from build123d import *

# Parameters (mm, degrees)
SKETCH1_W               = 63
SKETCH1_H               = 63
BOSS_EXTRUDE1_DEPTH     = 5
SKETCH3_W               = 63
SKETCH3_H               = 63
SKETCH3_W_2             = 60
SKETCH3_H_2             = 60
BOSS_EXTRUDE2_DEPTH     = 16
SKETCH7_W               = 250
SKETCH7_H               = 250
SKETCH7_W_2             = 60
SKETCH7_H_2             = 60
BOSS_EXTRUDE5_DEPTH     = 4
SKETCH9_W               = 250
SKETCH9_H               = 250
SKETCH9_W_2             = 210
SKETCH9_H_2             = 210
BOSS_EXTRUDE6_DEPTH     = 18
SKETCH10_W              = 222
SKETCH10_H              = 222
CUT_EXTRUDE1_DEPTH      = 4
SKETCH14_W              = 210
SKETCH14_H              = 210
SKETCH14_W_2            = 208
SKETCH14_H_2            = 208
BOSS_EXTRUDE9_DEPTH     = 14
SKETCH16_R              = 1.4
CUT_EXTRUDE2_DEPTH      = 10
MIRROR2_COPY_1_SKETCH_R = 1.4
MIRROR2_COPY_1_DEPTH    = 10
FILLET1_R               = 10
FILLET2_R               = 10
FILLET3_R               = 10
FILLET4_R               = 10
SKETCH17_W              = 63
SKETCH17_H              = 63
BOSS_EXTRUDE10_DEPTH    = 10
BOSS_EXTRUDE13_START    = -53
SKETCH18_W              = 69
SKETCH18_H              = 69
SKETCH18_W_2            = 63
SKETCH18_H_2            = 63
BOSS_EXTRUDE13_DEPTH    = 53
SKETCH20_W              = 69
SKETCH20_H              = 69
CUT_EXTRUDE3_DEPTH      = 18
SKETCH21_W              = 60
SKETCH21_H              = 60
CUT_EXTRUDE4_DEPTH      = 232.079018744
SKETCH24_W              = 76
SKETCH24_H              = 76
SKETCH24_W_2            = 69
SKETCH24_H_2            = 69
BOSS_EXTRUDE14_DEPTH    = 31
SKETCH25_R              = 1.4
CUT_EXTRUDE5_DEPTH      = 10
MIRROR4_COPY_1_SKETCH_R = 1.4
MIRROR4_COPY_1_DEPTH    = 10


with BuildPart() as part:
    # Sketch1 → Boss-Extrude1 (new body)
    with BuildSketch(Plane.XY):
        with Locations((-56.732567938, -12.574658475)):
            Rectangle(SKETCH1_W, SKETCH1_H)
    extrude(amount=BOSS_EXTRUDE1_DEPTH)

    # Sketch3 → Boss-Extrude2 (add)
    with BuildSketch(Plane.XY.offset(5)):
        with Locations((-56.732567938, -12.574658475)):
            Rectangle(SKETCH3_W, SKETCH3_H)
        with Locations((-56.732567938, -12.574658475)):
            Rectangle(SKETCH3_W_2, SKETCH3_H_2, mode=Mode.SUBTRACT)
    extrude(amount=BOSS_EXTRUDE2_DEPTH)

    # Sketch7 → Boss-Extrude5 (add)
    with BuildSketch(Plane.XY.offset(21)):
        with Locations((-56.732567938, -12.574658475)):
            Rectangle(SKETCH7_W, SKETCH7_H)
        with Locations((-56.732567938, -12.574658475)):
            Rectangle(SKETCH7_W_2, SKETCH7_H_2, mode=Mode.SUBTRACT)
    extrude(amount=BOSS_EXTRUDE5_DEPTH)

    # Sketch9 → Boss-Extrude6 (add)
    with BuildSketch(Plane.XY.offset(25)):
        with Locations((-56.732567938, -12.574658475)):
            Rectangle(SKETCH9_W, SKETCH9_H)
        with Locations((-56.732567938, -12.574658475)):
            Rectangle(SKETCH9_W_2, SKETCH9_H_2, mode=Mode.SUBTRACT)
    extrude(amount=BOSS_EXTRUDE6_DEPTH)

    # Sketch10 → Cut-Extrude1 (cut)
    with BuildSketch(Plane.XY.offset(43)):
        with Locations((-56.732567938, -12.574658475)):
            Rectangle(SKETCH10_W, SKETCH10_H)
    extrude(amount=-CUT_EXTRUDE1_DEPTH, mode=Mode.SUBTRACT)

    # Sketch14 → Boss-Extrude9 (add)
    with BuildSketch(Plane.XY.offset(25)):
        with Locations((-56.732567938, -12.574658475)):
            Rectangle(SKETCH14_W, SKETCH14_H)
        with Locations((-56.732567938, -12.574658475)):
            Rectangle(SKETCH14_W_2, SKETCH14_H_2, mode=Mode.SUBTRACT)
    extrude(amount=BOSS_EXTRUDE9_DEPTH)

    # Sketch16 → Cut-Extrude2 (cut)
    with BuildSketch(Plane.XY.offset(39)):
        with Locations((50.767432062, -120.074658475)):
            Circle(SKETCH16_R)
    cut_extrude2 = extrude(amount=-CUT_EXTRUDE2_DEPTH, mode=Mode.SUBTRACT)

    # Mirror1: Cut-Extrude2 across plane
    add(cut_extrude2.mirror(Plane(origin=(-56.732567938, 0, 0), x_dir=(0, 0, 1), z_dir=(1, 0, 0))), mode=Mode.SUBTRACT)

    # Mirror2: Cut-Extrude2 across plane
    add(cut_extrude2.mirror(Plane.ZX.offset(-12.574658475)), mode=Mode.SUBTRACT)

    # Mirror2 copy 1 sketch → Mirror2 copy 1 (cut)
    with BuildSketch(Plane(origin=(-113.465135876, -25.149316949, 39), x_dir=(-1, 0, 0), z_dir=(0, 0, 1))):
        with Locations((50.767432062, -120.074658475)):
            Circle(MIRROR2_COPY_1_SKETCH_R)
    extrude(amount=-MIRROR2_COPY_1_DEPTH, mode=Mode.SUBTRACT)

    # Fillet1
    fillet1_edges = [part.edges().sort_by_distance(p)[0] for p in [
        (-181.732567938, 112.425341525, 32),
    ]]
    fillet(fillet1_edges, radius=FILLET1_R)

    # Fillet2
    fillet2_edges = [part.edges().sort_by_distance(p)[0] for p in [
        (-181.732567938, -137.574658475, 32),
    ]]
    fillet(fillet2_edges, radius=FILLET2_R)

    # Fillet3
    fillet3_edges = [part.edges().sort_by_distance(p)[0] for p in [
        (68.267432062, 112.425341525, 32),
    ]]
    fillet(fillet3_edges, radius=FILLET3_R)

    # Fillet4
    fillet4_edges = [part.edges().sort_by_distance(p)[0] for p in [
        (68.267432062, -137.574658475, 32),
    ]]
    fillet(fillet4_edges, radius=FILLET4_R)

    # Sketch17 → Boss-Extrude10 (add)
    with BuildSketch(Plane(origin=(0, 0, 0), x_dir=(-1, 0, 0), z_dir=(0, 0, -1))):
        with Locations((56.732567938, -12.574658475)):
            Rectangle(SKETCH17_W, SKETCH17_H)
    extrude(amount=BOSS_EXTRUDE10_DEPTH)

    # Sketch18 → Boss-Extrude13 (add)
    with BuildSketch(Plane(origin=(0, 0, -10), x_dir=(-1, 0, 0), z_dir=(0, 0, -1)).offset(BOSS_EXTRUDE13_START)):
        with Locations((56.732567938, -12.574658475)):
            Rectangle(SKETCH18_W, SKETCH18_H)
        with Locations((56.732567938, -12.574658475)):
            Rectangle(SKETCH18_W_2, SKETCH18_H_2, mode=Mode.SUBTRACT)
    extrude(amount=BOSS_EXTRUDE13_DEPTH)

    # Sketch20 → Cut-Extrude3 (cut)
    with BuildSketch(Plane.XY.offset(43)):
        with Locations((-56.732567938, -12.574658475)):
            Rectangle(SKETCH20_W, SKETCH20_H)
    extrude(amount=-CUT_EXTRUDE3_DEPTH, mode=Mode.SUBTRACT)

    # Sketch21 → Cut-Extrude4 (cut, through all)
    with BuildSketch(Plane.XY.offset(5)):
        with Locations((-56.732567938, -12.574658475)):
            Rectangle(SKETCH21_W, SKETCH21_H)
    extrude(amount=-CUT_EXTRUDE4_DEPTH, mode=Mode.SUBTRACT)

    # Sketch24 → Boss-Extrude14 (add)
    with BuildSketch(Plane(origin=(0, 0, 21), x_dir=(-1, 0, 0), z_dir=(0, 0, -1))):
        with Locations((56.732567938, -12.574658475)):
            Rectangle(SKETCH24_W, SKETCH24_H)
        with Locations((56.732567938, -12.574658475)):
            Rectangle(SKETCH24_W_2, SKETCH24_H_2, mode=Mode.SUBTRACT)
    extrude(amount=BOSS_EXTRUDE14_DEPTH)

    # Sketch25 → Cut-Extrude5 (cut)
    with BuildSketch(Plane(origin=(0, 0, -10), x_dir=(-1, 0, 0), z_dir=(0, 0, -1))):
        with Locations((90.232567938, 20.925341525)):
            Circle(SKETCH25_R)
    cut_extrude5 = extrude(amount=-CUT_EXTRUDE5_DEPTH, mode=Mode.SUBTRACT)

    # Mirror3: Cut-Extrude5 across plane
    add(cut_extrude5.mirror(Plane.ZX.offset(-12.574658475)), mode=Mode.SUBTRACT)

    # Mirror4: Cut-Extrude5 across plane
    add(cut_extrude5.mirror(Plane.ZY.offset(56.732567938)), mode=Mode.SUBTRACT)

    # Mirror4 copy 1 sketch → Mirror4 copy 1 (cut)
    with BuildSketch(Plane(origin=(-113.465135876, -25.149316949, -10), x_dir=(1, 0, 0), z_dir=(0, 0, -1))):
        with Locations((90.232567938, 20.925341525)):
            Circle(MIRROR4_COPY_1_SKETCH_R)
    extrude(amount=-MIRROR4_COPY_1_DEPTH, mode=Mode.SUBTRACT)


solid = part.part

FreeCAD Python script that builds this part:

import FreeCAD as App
import Part
import Sketcher
Q = App.Units.Quantity


def edges_at(feature, points):
    """Names of the edges that pass closest to the given points."""
    edges = feature.Shape.Edges
    near = lambda p: min(range(len(edges)), key=lambda i: edges[i].distToShape(Part.Vertex(*p))[0])
    return sorted({f"Edge{near(p) + 1}" for p in points})


def add_polygon(sketch, points):
    """Adds a closed chain of lines whose ends are joined by coincident constraints."""
    first, n = sketch.GeometryCount, len(points)
    for a, b in zip(points, points[1:] + points[:1]):
        sketch.addGeometry(Part.LineSegment(App.Vector(*a, 0), App.Vector(*b, 0)), False)
    for i in range(n):
        sketch.addConstraint(Sketcher.Constraint("Coincident", first + i, 2, first + (i + 1) % n, 1))

doc = App.newDocument("Part")
body = doc.addObject("PartDesign::Body", "Body")

# Sketch on XY plane
sketch1 = body.newObject("Sketcher::SketchObject", "Sketch")
sketch1.AttachmentSupport = (doc.getObject("XY_Plane"), [""])
sketch1.MapMode = "FlatFace"
add_polygon(sketch1, [(-88, 19), (-88, -44), (-25, -44), (-25, 19)])  # lines 0-3
sketch1.addConstraint([
    Sketcher.Constraint("Vertical", 0),
    Sketcher.Constraint("Horizontal", 1),
    Sketcher.Constraint("Vertical", 2),
    Sketcher.Constraint("Horizontal", 3),
    Sketcher.Constraint("Equal", 3, 0),
    Sketcher.Constraint("DistanceX", 1, 1, 1, 2, Q("63 mm")),
    Sketcher.Constraint("DistanceY", 0, 2, -1, 1, Q("44.074658 mm")),
    Sketcher.Constraint("DistanceX", 0, 2, -1, 1, Q("88.232568 mm")),
])
pad1 = body.newObject("PartDesign::Pad", "Pad")
pad1.Profile = sketch1
pad1.Length = 5

# Sketch on XY plane
sketch2 = body.newObject("Sketcher::SketchObject", "Sketch001")
sketch2.AttachmentSupport = (doc.getObject("XY_Plane"), [""])
sketch2.MapMode = "FlatFace"
sketch2.AttachmentOffset = App.Placement(App.Vector(0, 0, 5), App.Rotation())
add_polygon(sketch2, [(-88, 19), (-88, -44), (-25, -44), (-25, 19)])  # lines 0-3
add_polygon(sketch2, [(-27, -43), (-87, -43), (-87, 17), (-27, 17)])  # lines 4-7
sketch2.addConstraint([
    Sketcher.Constraint("Vertical", 0),
    Sketcher.Constraint("Horizontal", 1),
    Sketcher.Constraint("Vertical", 2),
    Sketcher.Constraint("Horizontal", 3),
    Sketcher.Constraint("Horizontal", 4),
    Sketcher.Constraint("Vertical", 5),
    Sketcher.Constraint("Horizontal", 6),
    Sketcher.Constraint("Vertical", 7),
    Sketcher.Constraint("Equal", 3, 0),
    Sketcher.Constraint("Equal", 6, 5),
    Sketcher.Constraint("DistanceX", 1, 1, 1, 2, Q("63 mm")),
    Sketcher.Constraint("DistanceX", 4, 2, 4, 1, Q("60 mm")),
    Sketcher.Constraint("DistanceX", 0, 2, 4, 2, Q("1.5 mm")),
    Sketcher.Constraint("DistanceY", 0, 2, 4, 2, Q("1.5 mm")),
    Sketcher.Constraint("DistanceY", 0, 2, -1, 1, Q("44.074658 mm")),
    Sketcher.Constraint("DistanceX", 0, 2, -1, 1, Q("88.232568 mm")),
])
pad2 = body.newObject("PartDesign::Pad", "Pad001")
pad2.Profile = sketch2
pad2.Length = 16

# Sketch on XY plane
sketch3 = body.newObject("Sketcher::SketchObject", "Sketch002")
sketch3.AttachmentSupport = (doc.getObject("XY_Plane"), [""])
sketch3.MapMode = "FlatFace"
sketch3.AttachmentOffset = App.Placement(App.Vector(0, 0, 21), App.Rotation())
add_polygon(sketch3, [(-182, 112), (-182, -138), (68, -138), (68, 112)])  # lines 0-3
add_polygon(sketch3, [(-27, -43), (-87, -43), (-87, 17), (-27, 17)])  # lines 4-7
sketch3.addConstraint([
    Sketcher.Constraint("Vertical", 0),
    Sketcher.Constraint("Horizontal", 1),
    Sketcher.Constraint("Vertical", 2),
    Sketcher.Constraint("Horizontal", 3),
    Sketcher.Constraint("Horizontal", 4),
    Sketcher.Constraint("Vertical", 5),
    Sketcher.Constraint("Horizontal", 6),
    Sketcher.Constraint("Vertical", 7),
    Sketcher.Constraint("Equal", 3, 0),
    Sketcher.Constraint("Equal", 6, 5),
    Sketcher.Constraint("DistanceX", 1, 1, 1, 2, Q("250 mm")),
    Sketcher.Constraint("DistanceX", 4, 2, 4, 1, Q("60 mm")),
    Sketcher.Constraint("DistanceX", 0, 2, 4, 2, Q("95 mm")),
    Sketcher.Constraint("DistanceY", 0, 2, 4, 2, Q("95 mm")),
    Sketcher.Constraint("DistanceY", 0, 2, -1, 1, Q("137.574658 mm")),
    Sketcher.Constraint("DistanceX", 0, 2, -1, 1, Q("181.732568 mm")),
])
pad3 = body.newObject("PartDesign::Pad", "Pad002")
pad3.Profile = sketch3
pad3.Length = 4

# Sketch on XY plane
sketch4 = body.newObject("Sketcher::SketchObject", "Sketch003")
sketch4.AttachmentSupport = (doc.getObject("XY_Plane"), [""])
sketch4.MapMode = "FlatFace"
sketch4.AttachmentOffset = App.Placement(App.Vector(0, 0, 25), App.Rotation())
add_polygon(sketch4, [(-182, 112), (-182, -138), (68, -138), (68, 112)])  # lines 0-3
add_polygon(sketch4, [(48, -118), (-162, -118), (-162, 92), (48, 92)])  # lines 4-7
sketch4.addConstraint([
    Sketcher.Constraint("Vertical", 0),
    Sketcher.Constraint("Horizontal", 1),
    Sketcher.Constraint("Vertical", 2),
    Sketcher.Constraint("Horizontal", 3),
    Sketcher.Constraint("Horizontal", 4),
    Sketcher.Constraint("Vertical", 5),
    Sketcher.Constraint("Horizontal", 6),
    Sketcher.Constraint("Vertical", 7),
    Sketcher.Constraint("Equal", 3, 0),
    Sketcher.Constraint("Equal", 6, 5),
    Sketcher.Constraint("DistanceX", 1, 1, 1, 2, Q("250 mm")),
    Sketcher.Constraint("DistanceX", 4, 2, 4, 1, Q("210 mm")),
    Sketcher.Constraint("DistanceX", 0, 2, 4, 2, Q("20 mm")),
    Sketcher.Constraint("DistanceY", 0, 2, 4, 2, Q("20 mm")),
    Sketcher.Constraint("DistanceY", 0, 2, -1, 1, Q("137.574658 mm")),
    Sketcher.Constraint("DistanceX", 0, 2, -1, 1, Q("181.732568 mm")),
])
pad4 = body.newObject("PartDesign::Pad", "Pad003")
pad4.Profile = sketch4
pad4.Length = 18

# Sketch on XY plane
sketch5 = body.newObject("Sketcher::SketchObject", "Sketch004")
sketch5.AttachmentSupport = (doc.getObject("XY_Plane"), [""])
sketch5.MapMode = "FlatFace"
sketch5.AttachmentOffset = App.Placement(App.Vector(0, 0, 43), App.Rotation())
add_polygon(sketch5, [(-168, 98), (-168, -124), (54, -124), (54, 98)])  # lines 0-3
sketch5.addConstraint([
    Sketcher.Constraint("Vertical", 0),
    Sketcher.Constraint("Horizontal", 1),
    Sketcher.Constraint("Vertical", 2),
    Sketcher.Constraint("Horizontal", 3),
    Sketcher.Constraint("Equal", 3, 0),
    Sketcher.Constraint("DistanceX", 1, 1, 1, 2, Q("222 mm")),
    Sketcher.Constraint("DistanceY", 0, 2, -1, 1, Q("123.574658 mm")),
    Sketcher.Constraint("DistanceX", 0, 2, -1, 1, Q("167.732568 mm")),
])
pocket1 = body.newObject("PartDesign::Pocket", "Pocket")
pocket1.Profile = sketch5
pocket1.Length = 4

# Sketch on XY plane
sketch6 = body.newObject("Sketcher::SketchObject", "Sketch005")
sketch6.AttachmentSupport = (doc.getObject("XY_Plane"), [""])
sketch6.MapMode = "FlatFace"
sketch6.AttachmentOffset = App.Placement(App.Vector(0, 0, 25), App.Rotation())
add_polygon(sketch6, [(-162, 92), (-162, -118), (48, -118), (48, 92)])  # lines 0-3
add_polygon(sketch6, [(47, -117), (-161, -117), (-161, 91), (47, 91)])  # lines 4-7
sketch6.addConstraint([
    Sketcher.Constraint("Vertical", 0),
    Sketcher.Constraint("Horizontal", 1),
    Sketcher.Constraint("Vertical", 2),
    Sketcher.Constraint("Horizontal", 3),
    Sketcher.Constraint("Horizontal", 4),
    Sketcher.Constraint("Vertical", 5),
    Sketcher.Constraint("Horizontal", 6),
    Sketcher.Constraint("Vertical", 7),
    Sketcher.Constraint("Equal", 3, 0),
    Sketcher.Constraint("Equal", 6, 5),
    Sketcher.Constraint("DistanceX", 1, 1, 1, 2, Q("210 mm")),
    Sketcher.Constraint("DistanceX", 4, 2, 4, 1, Q("208 mm")),
    Sketcher.Constraint("DistanceX", 0, 2, 4, 2, Q("1 mm")),
    Sketcher.Constraint("DistanceY", 0, 2, 4, 2, Q("1 mm")),
    Sketcher.Constraint("DistanceY", 0, 2, -1, 1, Q("117.574658 mm")),
    Sketcher.Constraint("DistanceX", 0, 2, -1, 1, Q("161.732568 mm")),
])
pad5 = body.newObject("PartDesign::Pad", "Pad004")
pad5.Profile = sketch6
pad5.Length = 14

# Sketch on XY plane
sketch7 = body.newObject("Sketcher::SketchObject", "Sketch006")
sketch7.AttachmentSupport = (doc.getObject("XY_Plane"), [""])
sketch7.MapMode = "FlatFace"
sketch7.AttachmentOffset = App.Placement(App.Vector(0, 0, 39), App.Rotation())
sketch7.addGeometry(Part.Circle(App.Vector(50.8, -120.1, 0), App.Vector(0, 0, 1), 1.4), False)
sketch7.addConstraint([
    Sketcher.Constraint("Diameter", 0, Q("2.8 mm")),
    Sketcher.Constraint("DistanceY", 0, 3, -1, 1, Q("120.074658 mm")),
    Sketcher.Constraint("DistanceX", -1, 1, 0, 3, Q("50.767432 mm")),
])
pocket2 = body.newObject("PartDesign::Pocket", "Pocket001")
pocket2.Profile = sketch7
pocket2.Length = 10
doc.recompute()

datumplane = body.newObject("PartDesign::Plane", "DatumPlane")
datumplane.AttachmentSupport = (doc.getObject("YZ_Plane"), [""])
datumplane.MapMode = "FlatFace"
datumplane.AttachmentOffset = App.Placement(App.Vector(0, 0, -56.732568), App.Rotation())
mirrored = body.newObject("PartDesign::Mirrored", "Mirrored")
mirrored.Originals = [pocket2]
mirrored.MirrorPlane = (datumplane, [""])
body.Tip = mirrored
doc.recompute()

datumplane2 = body.newObject("PartDesign::Plane", "DatumPlane001")
datumplane2.AttachmentSupport = (doc.getObject("XZ_Plane"), [""])
datumplane2.MapMode = "FlatFace"
datumplane2.AttachmentOffset = App.Placement(App.Vector(0, 0, 12.574658), App.Rotation())
mirrored2 = body.newObject("PartDesign::Mirrored", "Mirrored001")
mirrored2.Originals = [pocket2]
mirrored2.MirrorPlane = (datumplane2, [""])
body.Tip = mirrored2

# Sketch on XY plane
sketch8 = body.newObject("Sketcher::SketchObject", "Sketch007")
sketch8.AttachmentSupport = (doc.getObject("XY_Plane"), [""])
sketch8.MapMode = "FlatFace"
sketch8.AttachmentOffset = App.Placement(App.Vector(0, 0, 39), App.Rotation())
sketch8.addGeometry(Part.Circle(App.Vector(-164.2, 94.9, 0), App.Vector(0, 0, 1), 1.4), False)
sketch8.addConstraint([
    Sketcher.Constraint("Diameter", 0, Q("2.8 mm")),
    Sketcher.Constraint("DistanceY", -1, 1, 0, 3, Q("94.925342 mm")),
    Sketcher.Constraint("DistanceX", 0, 3, -1, 1, Q("164.232568 mm")),
])
pocket3 = body.newObject("PartDesign::Pocket", "Pocket002")
pocket3.Profile = sketch8
pocket3.Length = 10
doc.recompute()

fillet = body.newObject("PartDesign::Fillet", "Fillet")
fillet.Base = (pocket3, edges_at(pocket3, [(-181.733, 112.425, 32)]))
fillet.Radius = 10
doc.recompute()

fillet2 = body.newObject("PartDesign::Fillet", "Fillet001")
fillet2.Base = (fillet, edges_at(fillet, [(-181.733, -137.575, 32)]))
fillet2.Radius = 10
doc.recompute()

fillet3 = body.newObject("PartDesign::Fillet", "Fillet002")
fillet3.Base = (fillet2, edges_at(fillet2, [(68.267, 112.425, 32)]))
fillet3.Radius = 10
doc.recompute()

fillet4 = body.newObject("PartDesign::Fillet", "Fillet003")
fillet4.Base = (fillet3, edges_at(fillet3, [(68.267, -137.575, 32)]))
fillet4.Radius = 10

# Sketch on XY plane
sketch9 = body.newObject("Sketcher::SketchObject", "Sketch008")
sketch9.AttachmentSupport = (doc.getObject("XY_Plane"), [""])
sketch9.MapMode = "FlatFace"
add_polygon(sketch9, [(-25, 19), (-25, -44), (-88, -44), (-88, 19)])  # lines 0-3
sketch9.addConstraint([
    Sketcher.Constraint("Vertical", 0),
    Sketcher.Constraint("Horizontal", 1),
    Sketcher.Constraint("Vertical", 2),
    Sketcher.Constraint("Horizontal", 3),
    Sketcher.Constraint("Equal", 3, 0),
    Sketcher.Constraint("DistanceX", 1, 2, 1, 1, Q("63 mm")),
    Sketcher.Constraint("DistanceY", 0, 2, -1, 1, Q("44.074658 mm")),
    Sketcher.Constraint("DistanceX", 0, 2, -1, 1, Q("25.232568 mm")),
])
pad6 = body.newObject("PartDesign::Pad", "Pad005")
pad6.Profile = sketch9
pad6.Length = 10
pad6.Reversed = True

# Sketch on XY plane
sketch10 = body.newObject("Sketcher::SketchObject", "Sketch009")
sketch10.AttachmentSupport = (doc.getObject("XY_Plane"), [""])
sketch10.MapMode = "FlatFace"
sketch10.AttachmentOffset = App.Placement(App.Vector(0, 0, 43), App.Rotation())
add_polygon(sketch10, [(-22, 22), (-22, -47), (-91, -47), (-91, 22)])  # lines 0-3
add_polygon(sketch10, [(-88, -44), (-25, -44), (-25, 19), (-88, 19)])  # lines 4-7
sketch10.addConstraint([
    Sketcher.Constraint("Vertical", 0),
    Sketcher.Constraint("Horizontal", 1),
    Sketcher.Constraint("Vertical", 2),
    Sketcher.Constraint("Horizontal", 3),
    Sketcher.Constraint("Horizontal", 4),
    Sketcher.Constraint("Vertical", 5),
    Sketcher.Constraint("Horizontal", 6),
    Sketcher.Constraint("Vertical", 7),
    Sketcher.Constraint("Equal", 3, 0),
    Sketcher.Constraint("Equal", 6, 5),
    Sketcher.Constraint("DistanceX", 1, 2, 1, 1, Q("69 mm")),
    Sketcher.Constraint("DistanceX", 4, 1, 4, 2, Q("63 mm")),
    Sketcher.Constraint("DistanceX", 4, 2, 0, 2, Q("3 mm")),
    Sketcher.Constraint("DistanceY", 0, 2, 4, 2, Q("3 mm")),
    Sketcher.Constraint("DistanceY", 0, 2, -1, 1, Q("47.074658 mm")),
    Sketcher.Constraint("DistanceX", 0, 2, -1, 1, Q("22.232568 mm")),
])
pad7 = body.newObject("PartDesign::Pad", "Pad006")
pad7.Profile = sketch10
pad7.Length = 53
pad7.Reversed = True

# Sketch on XY plane
sketch11 = body.newObject("Sketcher::SketchObject", "Sketch010")
sketch11.AttachmentSupport = (doc.getObject("XY_Plane"), [""])
sketch11.MapMode = "FlatFace"
sketch11.AttachmentOffset = App.Placement(App.Vector(0, 0, 43), App.Rotation())
add_polygon(sketch11, [(-91, 22), (-91, -47), (-22, -47), (-22, 22)])  # lines 0-3
sketch11.addConstraint([
    Sketcher.Constraint("Vertical", 0),
    Sketcher.Constraint("Horizontal", 1),
    Sketcher.Constraint("Vertical", 2),
    Sketcher.Constraint("Horizontal", 3),
    Sketcher.Constraint("Equal", 3, 0),
    Sketcher.Constraint("DistanceX", 1, 1, 1, 2, Q("69 mm")),
    Sketcher.Constraint("DistanceY", 0, 2, -1, 1, Q("47.074658 mm")),
    Sketcher.Constraint("DistanceX", 0, 2, -1, 1, Q("91.232568 mm")),
])
pocket4 = body.newObject("PartDesign::Pocket", "Pocket003")
pocket4.Profile = sketch11
pocket4.Length = 18

# Sketch on XY plane
sketch12 = body.newObject("Sketcher::SketchObject", "Sketch011")
sketch12.AttachmentSupport = (doc.getObject("XY_Plane"), [""])
sketch12.MapMode = "FlatFace"
sketch12.AttachmentOffset = App.Placement(App.Vector(0, 0, 5), App.Rotation())
add_polygon(sketch12, [(-87, 17), (-87, -43), (-27, -43), (-27, 17)])  # lines 0-3
sketch12.addConstraint([
    Sketcher.Constraint("Vertical", 0),
    Sketcher.Constraint("Horizontal", 1),
    Sketcher.Constraint("Vertical", 2),
    Sketcher.Constraint("Horizontal", 3),
    Sketcher.Constraint("Equal", 3, 0),
    Sketcher.Constraint("DistanceX", 1, 1, 1, 2, Q("60 mm")),
    Sketcher.Constraint("DistanceY", 0, 2, -1, 1, Q("42.574658 mm")),
    Sketcher.Constraint("DistanceX", 0, 2, -1, 1, Q("86.732568 mm")),
])
pocket5 = body.newObject("PartDesign::Pocket", "Pocket004")
pocket5.Profile = sketch12
pocket5.Type = "ThroughAll"

# Sketch on XY plane
sketch13 = body.newObject("Sketcher::SketchObject", "Sketch012")
sketch13.AttachmentSupport = (doc.getObject("XY_Plane"), [""])
sketch13.MapMode = "FlatFace"
sketch13.AttachmentOffset = App.Placement(App.Vector(0, 0, 21), App.Rotation())
add_polygon(sketch13, [(-19, 25), (-19, -51), (-95, -51), (-95, 25)])  # lines 0-3
add_polygon(sketch13, [(-91, -47), (-22, -47), (-22, 22), (-91, 22)])  # lines 4-7
sketch13.addConstraint([
    Sketcher.Constraint("Vertical", 0),
    Sketcher.Constraint("Horizontal", 1),
    Sketcher.Constraint("Vertical", 2),
    Sketcher.Constraint("Horizontal", 3),
    Sketcher.Constraint("Horizontal", 4),
    Sketcher.Constraint("Vertical", 5),
    Sketcher.Constraint("Horizontal", 6),
    Sketcher.Constraint("Vertical", 7),
    Sketcher.Constraint("Equal", 3, 0),
    Sketcher.Constraint("Equal", 6, 5),
    Sketcher.Constraint("DistanceX", 1, 2, 1, 1, Q("76 mm")),
    Sketcher.Constraint("DistanceX", 4, 1, 4, 2, Q("69 mm")),
    Sketcher.Constraint("DistanceX", 4, 2, 0, 2, Q("3.5 mm")),
    Sketcher.Constraint("DistanceY", 0, 2, 4, 2, Q("3.5 mm")),
    Sketcher.Constraint("DistanceY", 0, 2, -1, 1, Q("50.574658 mm")),
    Sketcher.Constraint("DistanceX", 0, 2, -1, 1, Q("18.732568 mm")),
])
pad8 = body.newObject("PartDesign::Pad", "Pad007")
pad8.Profile = sketch13
pad8.Length = 31
pad8.Reversed = True

# Sketch on XY plane
sketch14 = body.newObject("Sketcher::SketchObject", "Sketch013")
sketch14.AttachmentSupport = (doc.getObject("XY_Plane"), [""])
sketch14.MapMode = "FlatFace"
sketch14.AttachmentOffset = App.Placement(App.Vector(0, 0, -10), App.Rotation())
sketch14.addGeometry(Part.Circle(App.Vector(-90.2, 20.9, 0), App.Vector(0, 0, 1), 1.4), False)
sketch14.addConstraint([
    Sketcher.Constraint("Diameter", 0, Q("2.8 mm")),
    Sketcher.Constraint("DistanceY", -1, 1, 0, 3, Q("20.925342 mm")),
    Sketcher.Constraint("DistanceX", 0, 3, -1, 1, Q("90.232568 mm")),
])
pocket6 = body.newObject("PartDesign::Pocket", "Pocket005")
pocket6.Profile = sketch14
pocket6.Length = 10
pocket6.Reversed = True
doc.recompute()

datumplane3 = body.newObject("PartDesign::Plane", "DatumPlane002")
datumplane3.AttachmentSupport = (doc.getObject("XZ_Plane"), [""])
datumplane3.MapMode = "FlatFace"
datumplane3.AttachmentOffset = App.Placement(App.Vector(0, 0, 12.574658), App.Rotation())
mirrored3 = body.newObject("PartDesign::Mirrored", "Mirrored002")
mirrored3.Originals = [pocket6]
mirrored3.MirrorPlane = (datumplane3, [""])
body.Tip = mirrored3
doc.recompute()

datumplane4 = body.newObject("PartDesign::Plane", "DatumPlane003")
datumplane4.AttachmentSupport = (doc.getObject("YZ_Plane"), [""])
datumplane4.MapMode = "FlatFace"
datumplane4.AttachmentOffset = App.Placement(App.Vector(0, 0, -56.732568), App.Rotation())
mirrored4 = body.newObject("PartDesign::Mirrored", "Mirrored003")
mirrored4.Originals = [pocket6]
mirrored4.MirrorPlane = (datumplane4, [""])
body.Tip = mirrored4

# Sketch on XY plane
sketch15 = body.newObject("Sketcher::SketchObject", "Sketch014")
sketch15.AttachmentSupport = (doc.getObject("XY_Plane"), [""])
sketch15.MapMode = "FlatFace"
sketch15.AttachmentOffset = App.Placement(App.Vector(0, 0, -10), App.Rotation())
sketch15.addGeometry(Part.Circle(App.Vector(-23.2, -46.1, 0), App.Vector(0, 0, 1), 1.4), False)
sketch15.addConstraint([
    Sketcher.Constraint("Diameter", 0, Q("2.8 mm")),
    Sketcher.Constraint("DistanceY", 0, 3, -1, 1, Q("46.074658 mm")),
    Sketcher.Constraint("DistanceX", 0, 3, -1, 1, Q("23.232568 mm")),
])
pocket7 = body.newObject("PartDesign::Pocket", "Pocket006")
pocket7.Profile = sketch15
pocket7.Length = 10
pocket7.Reversed = True

doc.recompute()
